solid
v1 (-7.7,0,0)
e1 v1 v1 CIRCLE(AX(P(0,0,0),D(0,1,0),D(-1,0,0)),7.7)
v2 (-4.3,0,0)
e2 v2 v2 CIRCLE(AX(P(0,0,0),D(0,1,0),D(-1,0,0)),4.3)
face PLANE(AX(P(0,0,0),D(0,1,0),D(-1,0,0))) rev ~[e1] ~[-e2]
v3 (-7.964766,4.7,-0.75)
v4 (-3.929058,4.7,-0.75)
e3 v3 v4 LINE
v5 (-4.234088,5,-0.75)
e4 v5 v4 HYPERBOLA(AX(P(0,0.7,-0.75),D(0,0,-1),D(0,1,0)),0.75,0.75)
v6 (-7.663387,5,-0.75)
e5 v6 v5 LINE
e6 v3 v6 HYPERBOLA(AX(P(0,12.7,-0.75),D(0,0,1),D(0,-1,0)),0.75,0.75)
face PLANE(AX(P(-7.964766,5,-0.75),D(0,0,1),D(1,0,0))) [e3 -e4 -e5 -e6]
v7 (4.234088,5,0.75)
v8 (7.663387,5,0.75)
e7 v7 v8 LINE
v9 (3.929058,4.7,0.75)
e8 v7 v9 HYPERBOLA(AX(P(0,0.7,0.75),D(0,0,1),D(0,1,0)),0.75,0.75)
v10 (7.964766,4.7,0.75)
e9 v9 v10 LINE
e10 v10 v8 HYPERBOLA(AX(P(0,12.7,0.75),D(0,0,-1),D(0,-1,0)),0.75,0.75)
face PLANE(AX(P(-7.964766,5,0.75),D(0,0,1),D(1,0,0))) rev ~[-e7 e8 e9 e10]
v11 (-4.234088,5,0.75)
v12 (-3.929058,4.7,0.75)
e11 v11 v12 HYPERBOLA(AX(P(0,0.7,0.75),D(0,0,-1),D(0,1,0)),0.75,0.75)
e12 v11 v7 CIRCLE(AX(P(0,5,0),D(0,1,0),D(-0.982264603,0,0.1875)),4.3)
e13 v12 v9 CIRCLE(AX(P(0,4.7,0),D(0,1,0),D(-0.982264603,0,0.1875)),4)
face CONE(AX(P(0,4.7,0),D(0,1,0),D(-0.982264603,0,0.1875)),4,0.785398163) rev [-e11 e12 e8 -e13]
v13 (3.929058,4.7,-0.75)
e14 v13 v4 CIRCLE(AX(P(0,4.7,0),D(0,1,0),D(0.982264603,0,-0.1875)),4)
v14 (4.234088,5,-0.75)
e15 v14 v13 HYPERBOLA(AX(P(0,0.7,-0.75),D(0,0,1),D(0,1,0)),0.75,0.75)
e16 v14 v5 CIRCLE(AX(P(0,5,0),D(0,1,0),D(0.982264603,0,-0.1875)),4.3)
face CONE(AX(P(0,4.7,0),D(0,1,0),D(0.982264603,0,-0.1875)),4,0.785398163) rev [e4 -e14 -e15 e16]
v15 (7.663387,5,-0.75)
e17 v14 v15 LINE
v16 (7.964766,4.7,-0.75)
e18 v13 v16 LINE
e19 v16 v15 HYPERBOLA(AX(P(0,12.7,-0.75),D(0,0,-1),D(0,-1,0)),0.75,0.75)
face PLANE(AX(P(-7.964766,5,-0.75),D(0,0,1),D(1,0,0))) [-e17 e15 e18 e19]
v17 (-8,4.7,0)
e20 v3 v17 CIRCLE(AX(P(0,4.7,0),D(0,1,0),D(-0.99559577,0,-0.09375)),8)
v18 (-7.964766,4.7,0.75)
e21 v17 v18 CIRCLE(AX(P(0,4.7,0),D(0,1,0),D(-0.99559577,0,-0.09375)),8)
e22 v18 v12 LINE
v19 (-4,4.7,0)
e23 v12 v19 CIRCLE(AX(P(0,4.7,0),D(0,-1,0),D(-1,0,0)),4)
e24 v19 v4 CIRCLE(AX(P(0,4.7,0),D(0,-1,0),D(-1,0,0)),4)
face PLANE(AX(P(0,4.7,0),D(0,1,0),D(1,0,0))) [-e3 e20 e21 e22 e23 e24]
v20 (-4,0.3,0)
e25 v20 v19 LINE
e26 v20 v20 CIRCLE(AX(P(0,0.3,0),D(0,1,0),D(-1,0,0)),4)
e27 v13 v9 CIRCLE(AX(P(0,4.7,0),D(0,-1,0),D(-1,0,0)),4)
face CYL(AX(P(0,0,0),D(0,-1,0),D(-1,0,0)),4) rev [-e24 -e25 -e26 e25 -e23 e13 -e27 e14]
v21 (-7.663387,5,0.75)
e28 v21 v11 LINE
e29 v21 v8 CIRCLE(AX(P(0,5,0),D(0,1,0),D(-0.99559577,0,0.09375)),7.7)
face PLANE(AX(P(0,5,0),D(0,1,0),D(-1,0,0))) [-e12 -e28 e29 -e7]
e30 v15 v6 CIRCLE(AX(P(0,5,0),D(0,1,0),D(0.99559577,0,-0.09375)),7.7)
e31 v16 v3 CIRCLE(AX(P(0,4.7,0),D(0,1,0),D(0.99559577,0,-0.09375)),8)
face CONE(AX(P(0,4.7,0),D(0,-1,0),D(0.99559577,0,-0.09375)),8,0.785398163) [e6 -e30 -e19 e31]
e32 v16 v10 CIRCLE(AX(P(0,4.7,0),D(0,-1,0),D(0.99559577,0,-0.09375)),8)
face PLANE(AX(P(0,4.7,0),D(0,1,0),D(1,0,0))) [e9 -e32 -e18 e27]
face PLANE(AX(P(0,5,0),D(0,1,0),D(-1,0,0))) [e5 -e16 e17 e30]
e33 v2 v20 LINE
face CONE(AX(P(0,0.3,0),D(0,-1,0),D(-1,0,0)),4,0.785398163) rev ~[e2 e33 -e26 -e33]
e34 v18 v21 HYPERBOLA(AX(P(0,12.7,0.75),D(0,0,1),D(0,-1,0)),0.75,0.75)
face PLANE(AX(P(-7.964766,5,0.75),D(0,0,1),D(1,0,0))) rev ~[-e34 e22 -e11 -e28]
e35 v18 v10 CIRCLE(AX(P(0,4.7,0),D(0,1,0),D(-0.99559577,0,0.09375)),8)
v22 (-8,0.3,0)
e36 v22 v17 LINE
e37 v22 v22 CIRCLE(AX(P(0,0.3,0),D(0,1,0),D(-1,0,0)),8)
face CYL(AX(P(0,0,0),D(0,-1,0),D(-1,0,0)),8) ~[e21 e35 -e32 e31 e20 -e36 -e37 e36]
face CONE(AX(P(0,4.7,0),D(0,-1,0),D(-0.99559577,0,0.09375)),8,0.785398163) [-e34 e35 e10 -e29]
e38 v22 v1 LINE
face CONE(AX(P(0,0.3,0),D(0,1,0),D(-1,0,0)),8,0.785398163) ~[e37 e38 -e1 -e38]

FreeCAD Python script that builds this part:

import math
import FreeCAD as App
import Part
import Sketcher

V = App.Vector


def edges_at(feature, points):
    """Names of the edges that pass closest to the given points."""
    edges = feature.Shape.Edges
    near = lambda p: min(range(len(edges)), key=lambda i: edges[i].distToShape(Part.Vertex(*p))[0])
    return sorted({f"Edge{near(p) + 1}" for p in points})

doc = App.newDocument("Part")
params = doc.addObject("Spreadsheet::Sheet", "Params")
for row, (alias, value) in enumerate([
    ("sketch1_diameter", "16 mm"),
    ("sketch1_diameter2", "8 mm"),
    ("pad1_length", "5 mm"),
    ("sketch2_radius", "8 mm"),
    ("pocket1_length", "0.3 mm"),
    ("chamfer_size", "0.3 mm"),
], start=1):
    params.set(f"A{row}", alias)
    params.set(f"B{row}", "=" + value)
    params.setAlias(f"B{row}", alias)

body = doc.addObject("PartDesign::Body", "Body")

sketch1 = body.newObject("Sketcher::SketchObject", "Sketch")
sketch1.AttachmentSupport = (doc.getObject("XZ_Plane"), [""])
sketch1.MapMode = "FlatFace"
sketch1.addGeometry([
    Part.Circle(V(0, 0, 0), V(0, 0, 1), 8),
    Part.Circle(V(0, 0, 0), V(0, 0, 1), 4),
], False)
sketch1.addConstraint([
    Sketcher.Constraint("Coincident", 0, 3, -1, 1),
    Sketcher.Constraint("Coincident", 1, 3, -1, 1),
    Sketcher.Constraint("Diameter", 0, 16.0),
    Sketcher.Constraint("Diameter", 1, 8.0),
])
sketch1.setExpression("Constraints[2]", "Params.sketch1_diameter")
sketch1.setExpression("Constraints[3]", "Params.sketch1_diameter2")
pad1 = body.newObject("PartDesign::Pad", "Pad")
pad1.Profile = sketch1
pad1.setExpression("Length", "Params.pad1_length")
pad1.Reversed = True

sketch2 = body.newObject("Sketcher::SketchObject", "Sketch001")
sketch2.AttachmentSupport = (doc.getObject("XZ_Plane"), [""])
sketch2.MapMode = "FlatFace"
sketch2.AttachmentOffset = App.Placement(V(0, 0, -5), App.Rotation())
sketch2.addGeometry([
    Part.ArcOfCircle(Part.Circle(V(0, 0, 0), V(0, 0, 1), 8), math.radians(174.62), math.radians(185.38)),
    Part.LineSegment(V(-8, 0.8, 0), V(8, 0.8, 0)),
    Part.ArcOfCircle(Part.Circle(V(0, 0, 0), V(0, 0, 1), 8), math.radians(-5.38), math.radians(5.38)),
    Part.LineSegment(V(8, -0.8, 0), V(-8, -0.8, 0)),
], False)
sketch2.addConstraint([
    Sketcher.Constraint("Coincident", 0, 1, 1, 1),
    Sketcher.Constraint("Coincident", 1, 2, 2, 2),
    Sketcher.Constraint("Coincident", 2, 1, 3, 1),
    Sketcher.Constraint("Coincident", 3, 2, 0, 2),
    Sketcher.Constraint("Horizontal", 1),
    Sketcher.Constraint("Horizontal", 3),
    Sketcher.Constraint("Coincident", 0, 3, -1, 1),
    Sketcher.Constraint("Coincident", 2, 3, -1, 1),
    Sketcher.Constraint("Equal", 0, 2),
    Sketcher.Constraint("Vertical", 1, 2, 2, 1),
    Sketcher.Constraint("Radius", 0, 8.0),
    Sketcher.Constraint("DistanceY", -1, 1, 0, 1, 0.75),
])
sketch2.setExpression("Constraints[10]", "Params.sketch2_radius")
pocket1 = body.newObject("PartDesign::Pocket", "Pocket")
pocket1.Profile = sketch2
pocket1.setExpression("Length", "Params.pocket1_length")
pocket1.Reversed = True
doc.recompute()

chamfer = body.newObject("PartDesign::Chamfer", "Chamfer")
chamfer.Base = (pocket1, edges_at(pocket1, [
    (0, 5, 4),
    (0, 5, -4),
    (0, 5, -8),
    (0, 5, 8),
    (8, 0, 0),
    (4, 0, 0),
]))
chamfer.setExpression("Size", "Params.chamfer_size")

doc.recompute()
